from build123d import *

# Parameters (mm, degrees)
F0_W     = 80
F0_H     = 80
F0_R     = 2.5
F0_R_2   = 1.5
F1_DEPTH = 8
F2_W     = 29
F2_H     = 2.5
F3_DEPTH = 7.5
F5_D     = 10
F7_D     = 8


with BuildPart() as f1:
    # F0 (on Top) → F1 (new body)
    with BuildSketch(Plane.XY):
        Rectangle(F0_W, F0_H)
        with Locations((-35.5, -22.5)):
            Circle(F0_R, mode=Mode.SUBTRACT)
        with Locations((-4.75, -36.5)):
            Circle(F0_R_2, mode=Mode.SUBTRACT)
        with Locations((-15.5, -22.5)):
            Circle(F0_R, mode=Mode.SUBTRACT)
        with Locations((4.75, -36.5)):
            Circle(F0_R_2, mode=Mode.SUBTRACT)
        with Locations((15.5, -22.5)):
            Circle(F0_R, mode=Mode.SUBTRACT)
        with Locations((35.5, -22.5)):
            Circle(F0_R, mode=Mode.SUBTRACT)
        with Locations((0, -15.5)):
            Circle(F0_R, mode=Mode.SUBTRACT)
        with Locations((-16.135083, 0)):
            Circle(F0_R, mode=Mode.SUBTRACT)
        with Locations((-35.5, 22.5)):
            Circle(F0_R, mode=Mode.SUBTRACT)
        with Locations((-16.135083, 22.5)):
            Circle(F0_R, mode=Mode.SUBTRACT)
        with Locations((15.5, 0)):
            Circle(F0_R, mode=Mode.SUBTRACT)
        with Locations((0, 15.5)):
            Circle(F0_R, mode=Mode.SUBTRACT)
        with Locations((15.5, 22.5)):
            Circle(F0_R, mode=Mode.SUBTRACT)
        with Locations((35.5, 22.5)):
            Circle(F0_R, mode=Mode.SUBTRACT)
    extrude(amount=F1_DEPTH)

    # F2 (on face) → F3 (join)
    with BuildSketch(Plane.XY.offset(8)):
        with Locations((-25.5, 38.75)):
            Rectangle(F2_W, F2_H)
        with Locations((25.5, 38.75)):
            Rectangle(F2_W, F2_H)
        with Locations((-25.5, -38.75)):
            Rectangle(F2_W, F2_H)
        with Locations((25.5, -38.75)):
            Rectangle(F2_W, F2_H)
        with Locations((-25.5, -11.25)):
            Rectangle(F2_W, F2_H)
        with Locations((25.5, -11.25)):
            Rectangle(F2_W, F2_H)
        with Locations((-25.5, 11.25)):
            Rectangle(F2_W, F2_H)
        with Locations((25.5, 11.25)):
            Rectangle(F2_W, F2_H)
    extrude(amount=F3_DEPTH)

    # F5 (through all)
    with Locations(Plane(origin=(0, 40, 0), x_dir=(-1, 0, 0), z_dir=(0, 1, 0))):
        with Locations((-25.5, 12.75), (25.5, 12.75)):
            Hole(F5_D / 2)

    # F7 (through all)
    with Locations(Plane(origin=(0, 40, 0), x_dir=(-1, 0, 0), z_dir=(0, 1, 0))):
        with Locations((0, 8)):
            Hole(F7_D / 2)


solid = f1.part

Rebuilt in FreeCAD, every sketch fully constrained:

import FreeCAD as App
import Part
import Sketcher

V = App.Vector
Q = App.Units.Quantity

doc = App.newDocument("Part")
params = doc.addObject("Spreadsheet::Sheet", "Params")
for row, (alias, value) in enumerate([
    ("sketch1_diameter", "5 mm"),
    ("sketch1_diameter2", "3 mm"),
    ("sketch1_width", "80 mm"),
    ("pad1_length", "8 mm"),
    ("sketch2_width", "29 mm"),
    ("sketch2_height", "2.5 mm"),
    ("pad2_length", "7.5 mm"),
    ("sketch3_diameter", "10 mm"),
    ("hole_diameter", "10 mm"),
    ("sketch4_diameter", "8 mm"),
    ("hole2_diameter", "8 mm"),
], start=1):
    params.set(f"A{row}", alias)
    params.set(f"B{row}", "=" + value)
    params.setAlias(f"B{row}", alias)

body = doc.addObject("PartDesign::Body", "Body")

# Sketch on XY plane
sketch1 = body.newObject("Sketcher::SketchObject", "Sketch")
sketch1.AttachmentSupport = (doc.getObject("XY_Plane"), [""])
sketch1.MapMode = "FlatFace"
sketch1.addGeometry([
    Part.LineSegment(V(-40, 40, 0), V(-40, -40, 0)),  # 0
    Part.LineSegment(V(-40, -40, 0), V(40, -40, 0)),  # 1
    Part.LineSegment(V(40, -40, 0), V(40, 40, 0)),  # 2
    Part.LineSegment(V(40, 40, 0), V(-40, 40, 0)),  # 3
    Part.Circle(V(-35.5, -22.5, 0), V(0, 0, 1), 2.5),  # 4
    Part.Circle(V(-4.8, -36.5, 0), V(0, 0, 1), 1.5),  # 5
    Part.Circle(V(-15.5, -22.5, 0), V(0, 0, 1), 2.5),  # 6
    Part.Circle(V(4.8, -36.5, 0), V(0, 0, 1), 1.5),  # 7
    Part.Circle(V(15.5, -22.5, 0), V(0, 0, 1), 2.5),  # 8
    Part.Circle(V(35.5, -22.5, 0), V(0, 0, 1), 2.5),  # 9
    Part.Circle(V(0, -15.5, 0), V(0, 0, 1), 2.5),  # 10
    Part.Circle(V(-16.1, 0, 0), V(0, 0, 1), 2.5),  # 11
    Part.Circle(V(-35.5, 22.5, 0), V(0, 0, 1), 2.5),  # 12
    Part.Circle(V(-16.1, 22.5, 0), V(0, 0, 1), 2.5),  # 13
    Part.Circle(V(15.5, 0, 0), V(0, 0, 1), 2.5),  # 14
    Part.Circle(V(0, 15.5, 0), V(0, 0, 1), 2.5),  # 15
    Part.Circle(V(15.5, 22.5, 0), V(0, 0, 1), 2.5),  # 16
    Part.Circle(V(35.5, 22.5, 0), V(0, 0, 1), 2.5),  # 17
], False)
sketch1.addConstraint([
    Sketcher.Constraint("Coincident", 0, 2, 1, 1),
    Sketcher.Constraint("Coincident", 1, 2, 2, 1),
    Sketcher.Constraint("Coincident", 2, 2, 3, 1),
    Sketcher.Constraint("Coincident", 3, 2, 0, 1),
    Sketcher.Constraint("Vertical", 0),
    Sketcher.Constraint("Horizontal", 1),
    Sketcher.Constraint("Vertical", 2),
    Sketcher.Constraint("Horizontal", 3),
    Sketcher.Constraint("Equal", 4, 6),
    Sketcher.Constraint("Equal", 5, 7),
    Sketcher.Constraint("Equal", 6, 8),
    Sketcher.Constraint("Equal", 8, 9),
    Sketcher.Constraint("Equal", 9, 10),
    Sketcher.Constraint("Equal", 10, 11),
    Sketcher.Constraint("Equal", 11, 12),
    Sketcher.Constraint("Equal", 12, 13),
    Sketcher.Constraint("Equal", 13, 14),
    Sketcher.Constraint("Equal", 14, 15),
    Sketcher.Constraint("Equal", 15, 16),
    Sketcher.Constraint("Equal", 16, 17),
    Sketcher.Constraint("Symmetric", 9, 3, 12, 3, -1, 1),
    Sketcher.Constraint("Symmetric", 10, 3, 15, 3, -1, 1),
    Sketcher.Constraint("Symmetric", 6, 3, 16, 3, -1, 1),
    Sketcher.Constraint("Symmetric", 4, 3, 17, 3, -1, 1),
    Sketcher.Constraint("Symmetric", 0, 2, 2, 2, -1, 1),
    Sketcher.Constraint("Symmetric", 5, 3, 7, 3, -2),
    Sketcher.Constraint("Symmetric", 6, 3, 8, 3, -2),
    Sketcher.Constraint("Symmetric", 4, 3, 9, 3, -2),
    Sketcher.Constraint("PointOnObject", 10, 3, -2),
    Sketcher.Constraint("PointOnObject", 11, 3, -1),
    Sketcher.Constraint("PointOnObject", 14, 3, -1),
    Sketcher.Constraint("Horizontal", 4, 3, 6, 3),
    Sketcher.Constraint("Horizontal", 12, 3, 13, 3),
    Sketcher.Constraint("Vertical", 11, 3, 13, 3),
    Sketcher.Constraint("Vertical", 8, 3, 14, 3),
    Sketcher.Constraint("Equal", 3, 0),
    Sketcher.Constraint("Diameter", 4, Q("5 mm")),
    Sketcher.Constraint("Diameter", 5, Q("3 mm")),
    Sketcher.Constraint("DistanceX", 1, 1, 1, 2, Q("80 mm")),
    Sketcher.Constraint("DistanceY", 5, 3, 4, 3, Q("14 mm")),
    Sketcher.Constraint("DistanceX", 4, 3, 6, 3, Q("20 mm")),
    Sketcher.Constraint("DistanceX", 6, 3, 8, 3, Q("31 mm")),
    Sketcher.Constraint("DistanceY", 6, 3, 10, 3, Q("7 mm")),
    Sketcher.Constraint("DistanceY", 4, 3, 12, 3, Q("45 mm")),
    Sketcher.Constraint("DistanceX", 5, 3, 7, 3, Q("9.5 mm")),
    Sketcher.Constraint("DistanceX", 11, 3, -1, 1, Q("16.135083 mm")),
])
sketch1.setExpression("Constraints[36]", "Params.sketch1_diameter")
sketch1.setExpression("Constraints[37]", "Params.sketch1_diameter2")
sketch1.setExpression("Constraints[38]", "Params.sketch1_width")
pad1 = body.newObject("PartDesign::Pad", "Pad")
pad1.Profile = sketch1
pad1.setExpression("Length", "Params.pad1_length")

# Sketch on XY plane
sketch2 = body.newObject("Sketcher::SketchObject", "Sketch001")
sketch2.AttachmentSupport = (doc.getObject("XY_Plane"), [""])
sketch2.MapMode = "FlatFace"
sketch2.AttachmentOffset = App.Placement(V(0, 0, 8), App.Rotation())
sketch2.addGeometry([
    Part.LineSegment(V(-40, 40, 0), V(-40, 37.5, 0)),  # 0
    Part.LineSegment(V(-40, 37.5, 0), V(-11, 37.5, 0)),  # 1
    Part.LineSegment(V(-11, 37.5, 0), V(-11, 40, 0)),  # 2
    Part.LineSegment(V(-11, 40, 0), V(-40, 40, 0)),  # 3
    Part.LineSegment(V(11, 40, 0), V(11, 37.5, 0)),  # 4
    Part.LineSegment(V(11, 37.5, 0), V(40, 37.5, 0)),  # 5
    Part.LineSegment(V(40, 37.5, 0), V(40, 40, 0)),  # 6
    Part.LineSegment(V(40, 40, 0), V(11, 40, 0)),  # 7
    Part.LineSegment(V(-40, -37.5, 0), V(-40, -40, 0)),  # 8
    Part.LineSegment(V(-40, -40, 0), V(-11, -40, 0)),  # 9
    Part.LineSegment(V(-11, -40, 0), V(-11, -37.5, 0)),  # 10
    Part.LineSegment(V(-11, -37.5, 0), V(-40, -37.5, 0)),  # 11
    Part.LineSegment(V(11, -37.5, 0), V(11, -40, 0)),  # 12
    Part.LineSegment(V(11, -40, 0), V(40, -40, 0)),  # 13
    Part.LineSegment(V(40, -40, 0), V(40, -37.5, 0)),  # 14
    Part.LineSegment(V(40, -37.5, 0), V(11, -37.5, 0)),  # 15
    Part.LineSegment(V(-40, -10, 0), V(-40, -12.5, 0)),  # 16
    Part.LineSegment(V(-40, -12.5, 0), V(-11, -12.5, 0)),  # 17
    Part.LineSegment(V(-11, -12.5, 0), V(-11, -10, 0)),  # 18
    Part.LineSegment(V(-11, -10, 0), V(-40, -10, 0)),  # 19
    Part.LineSegment(V(11, -10, 0), V(11, -12.5, 0)),  # 20
    Part.LineSegment(V(11, -12.5, 0), V(40, -12.5, 0)),  # 21
    Part.LineSegment(V(40, -12.5, 0), V(40, -10, 0)),  # 22
    Part.LineSegment(V(40, -10, 0), V(11, -10, 0)),  # 23
    Part.LineSegment(V(-40, 12.5, 0), V(-40, 10, 0)),  # 24
    Part.LineSegment(V(-40, 10, 0), V(-11, 10, 0)),  # 25
    Part.LineSegment(V(-11, 10, 0), V(-11, 12.5, 0)),  # 26
    Part.LineSegment(V(-11, 12.5, 0), V(-40, 12.5, 0)),  # 27
    Part.LineSegment(V(11, 12.5, 0), V(11, 10, 0)),  # 28
    Part.LineSegment(V(11, 10, 0), V(40, 10, 0)),  # 29
    Part.LineSegment(V(40, 10, 0), V(40, 12.5, 0)),  # 30
    Part.LineSegment(V(40, 12.5, 0), V(11, 12.5, 0)),  # 31
], False)
sketch2.addConstraint([
    Sketcher.Constraint("Coincident", 0, 2, 1, 1),
    Sketcher.Constraint("Coincident", 1, 2, 2, 1),
    Sketcher.Constraint("Coincident", 2, 2, 3, 1),
    Sketcher.Constraint("Coincident", 3, 2, 0, 1),
    Sketcher.Constraint("Coincident", 4, 2, 5, 1),
    Sketcher.Constraint("Coincident", 5, 2, 6, 1),
    Sketcher.Constraint("Coincident", 6, 2, 7, 1),
    Sketcher.Constraint("Coincident", 7, 2, 4, 1),
    Sketcher.Constraint("Coincident", 8, 2, 9, 1),
    Sketcher.Constraint("Coincident", 9, 2, 10, 1),
    Sketcher.Constraint("Coincident", 10, 2, 11, 1),
    Sketcher.Constraint("Coincident", 11, 2, 8, 1),
    Sketcher.Constraint("Coincident", 12, 2, 13, 1),
    Sketcher.Constraint("Coincident", 13, 2, 14, 1),
    Sketcher.Constraint("Coincident", 14, 2, 15, 1),
    Sketcher.Constraint("Coincident", 15, 2, 12, 1),
    Sketcher.Constraint("Coincident", 16, 2, 17, 1),
    Sketcher.Constraint("Coincident", 17, 2, 18, 1),
    Sketcher.Constraint("Coincident", 18, 2, 19, 1),
    Sketcher.Constraint("Coincident", 19, 2, 16, 1),
    Sketcher.Constraint("Coincident", 20, 2, 21, 1),
    Sketcher.Constraint("Coincident", 21, 2, 22, 1),
    Sketcher.Constraint("Coincident", 22, 2, 23, 1),
    Sketcher.Constraint("Coincident", 23, 2, 20, 1),
    Sketcher.Constraint("Coincident", 24, 2, 25, 1),
    Sketcher.Constraint("Coincident", 25, 2, 26, 1),
    Sketcher.Constraint("Coincident", 26, 2, 27, 1),
    Sketcher.Constraint("Coincident", 27, 2, 24, 1),
    Sketcher.Constraint("Coincident", 28, 2, 29, 1),
    Sketcher.Constraint("Coincident", 29, 2, 30, 1),
    Sketcher.Constraint("Coincident", 30, 2, 31, 1),
    Sketcher.Constraint("Coincident", 31, 2, 28, 1),
    Sketcher.Constraint("Vertical", 0),
    Sketcher.Constraint("Horizontal", 1),
    Sketcher.Constraint("Vertical", 2),
    Sketcher.Constraint("Horizontal", 3),
    Sketcher.Constraint("Vertical", 4),
    Sketcher.Constraint("Horizontal", 5),
    Sketcher.Constraint("Vertical", 6),
    Sketcher.Constraint("Horizontal", 7),
    Sketcher.Constraint("Vertical", 8),
    Sketcher.Constraint("Horizontal", 9),
    Sketcher.Constraint("Vertical", 10),
    Sketcher.Constraint("Horizontal", 11),
    Sketcher.Constraint("Vertical", 12),
    Sketcher.Constraint("Horizontal", 13),
    Sketcher.Constraint("Vertical", 14),
    Sketcher.Constraint("Horizontal", 15),
    Sketcher.Constraint("Vertical", 16),
    Sketcher.Constraint("Horizontal", 17),
    Sketcher.Constraint("Vertical", 18),
    Sketcher.Constraint("Horizontal", 19),
    Sketcher.Constraint("Vertical", 20),
    Sketcher.Constraint("Horizontal", 21),
    Sketcher.Constraint("Vertical", 22),
    Sketcher.Constraint("Horizontal", 23),
    Sketcher.Constraint("Vertical", 24),
    Sketcher.Constraint("Horizontal", 25),
    Sketcher.Constraint("Vertical", 26),
    Sketcher.Constraint("Horizontal", 27),
    Sketcher.Constraint("Vertical", 28),
    Sketcher.Constraint("Horizontal", 29),
    Sketcher.Constraint("Vertical", 30),
    Sketcher.Constraint("Horizontal", 31),
    Sketcher.Constraint("Symmetric", 6, 2, 8, 2, -1, 1),
    Sketcher.Constraint("Symmetric", 4, 2, 10, 2, -1, 1),
    Sketcher.Constraint("Symmetric", 2, 2, 12, 2, -1, 1),
    Sketcher.Constraint("Symmetric", 0, 2, 14, 2, -1, 1),
    Sketcher.Constraint("Symmetric", 22, 2, 24, 2, -1, 1),
    Sketcher.Constraint("Symmetric", 20, 2, 26, 2, -1, 1),
    Sketcher.Constraint("Symmetric", 18, 2, 28, 2, -1, 1),
    Sketcher.Constraint("Symmetric", 16, 2, 30, 2, -1, 1),
    Sketcher.Constraint("Symmetric", 1, 2, 4, 2, -2),
    Sketcher.Constraint("Symmetric", 3, 2, 6, 2, -2),
    Sketcher.Constraint("Symmetric", 17, 2, 20, 2, -2),
    Sketcher.Constraint("Symmetric", 19, 2, 22, 2, -2),
    Sketcher.Constraint("Vertical", 11, 2, 16, 2),
    Sketcher.Constraint("Vertical", 10, 2, 17, 2),
    Sketcher.Constraint("Equal", 14, 16),
    Sketcher.Constraint("DistanceX", 1, 1, 1, 2, Q("29 mm")),
    Sketcher.Constraint("DistanceY", 0, 2, 0, 1, Q("2.5 mm")),
    Sketcher.Constraint("DistanceX", 0, 2, -1, 1, Q("40 mm")),
    Sketcher.Constraint("DistanceY", -1, 1, 2, 2, Q("40 mm")),
    Sketcher.Constraint("DistanceY", 18, 2, -1, 1, Q("10 mm")),
])
sketch2.setExpression("Constraints[79]", "Params.sketch2_width")
sketch2.setExpression("Constraints[80]", "Params.sketch2_height")
pad2 = body.newObject("PartDesign::Pad", "Pad001")
pad2.Profile = sketch2
pad2.setExpression("Length", "Params.pad2_length")

# Sketch on XZ plane
sketch3 = body.newObject("Sketcher::SketchObject", "Sketch002")
sketch3.AttachmentSupport = (doc.getObject("XZ_Plane"), [""])
sketch3.MapMode = "FlatFace"
sketch3.AttachmentOffset = App.Placement(V(0, 0, -40), App.Rotation())
sketch3.addGeometry([
    Part.Circle(V(26, 13, 0), V(0, 0, 1), 5),
    Part.Circle(V(-26, 13, 0), V(0, 0, 1), 5),
], False)
sketch3.addConstraint([
    Sketcher.Constraint("Equal", 0, 1),
    Sketcher.Constraint("Symmetric", 0, 3, 1, 3, -2),
    Sketcher.Constraint("Diameter", 0, Q("10 mm")),
    Sketcher.Constraint("DistanceX", 1, 3, 0, 3, Q("51 mm")),
    Sketcher.Constraint("DistanceY", -1, 1, 0, 3, Q("12.75 mm")),
])
sketch3.setExpression("Constraints[2]", "Params.sketch3_diameter")
doc.recompute()
hole = body.newObject("PartDesign::Hole", "Hole")
hole.Profile = sketch3
hole.ThreadType = "None"
hole.setExpression("Diameter", "Params.hole_diameter")
hole.DepthType = "ThroughAll"
hole.Reversed = True

# Sketch on XZ plane
sketch4 = body.newObject("Sketcher::SketchObject", "Sketch003")
sketch4.AttachmentSupport = (doc.getObject("XZ_Plane"), [""])
sketch4.MapMode = "FlatFace"
sketch4.AttachmentOffset = App.Placement(V(0, 0, -40), App.Rotation())
sketch4.addGeometry(Part.Circle(V(0, 8, 0), V(0, 0, 1), 4), False)
sketch4.addConstraint([
    Sketcher.Constraint("PointOnObject", 0, 3, -2),
    Sketcher.Constraint("Diameter", 0, Q("8 mm")),
    Sketcher.Constraint("DistanceY", -1, 1, 0, 3, Q("8 mm")),
])
sketch4.setExpression("Constraints[1]", "Params.sketch4_diameter")
doc.recompute()
hole2 = body.newObject("PartDesign::Hole", "Hole001")
hole2.Profile = sketch4
hole2.ThreadType = "None"
hole2.setExpression("Diameter", "Params.hole2_diameter")
hole2.DepthType = "ThroughAll"
hole2.Reversed = True

doc.recompute()
